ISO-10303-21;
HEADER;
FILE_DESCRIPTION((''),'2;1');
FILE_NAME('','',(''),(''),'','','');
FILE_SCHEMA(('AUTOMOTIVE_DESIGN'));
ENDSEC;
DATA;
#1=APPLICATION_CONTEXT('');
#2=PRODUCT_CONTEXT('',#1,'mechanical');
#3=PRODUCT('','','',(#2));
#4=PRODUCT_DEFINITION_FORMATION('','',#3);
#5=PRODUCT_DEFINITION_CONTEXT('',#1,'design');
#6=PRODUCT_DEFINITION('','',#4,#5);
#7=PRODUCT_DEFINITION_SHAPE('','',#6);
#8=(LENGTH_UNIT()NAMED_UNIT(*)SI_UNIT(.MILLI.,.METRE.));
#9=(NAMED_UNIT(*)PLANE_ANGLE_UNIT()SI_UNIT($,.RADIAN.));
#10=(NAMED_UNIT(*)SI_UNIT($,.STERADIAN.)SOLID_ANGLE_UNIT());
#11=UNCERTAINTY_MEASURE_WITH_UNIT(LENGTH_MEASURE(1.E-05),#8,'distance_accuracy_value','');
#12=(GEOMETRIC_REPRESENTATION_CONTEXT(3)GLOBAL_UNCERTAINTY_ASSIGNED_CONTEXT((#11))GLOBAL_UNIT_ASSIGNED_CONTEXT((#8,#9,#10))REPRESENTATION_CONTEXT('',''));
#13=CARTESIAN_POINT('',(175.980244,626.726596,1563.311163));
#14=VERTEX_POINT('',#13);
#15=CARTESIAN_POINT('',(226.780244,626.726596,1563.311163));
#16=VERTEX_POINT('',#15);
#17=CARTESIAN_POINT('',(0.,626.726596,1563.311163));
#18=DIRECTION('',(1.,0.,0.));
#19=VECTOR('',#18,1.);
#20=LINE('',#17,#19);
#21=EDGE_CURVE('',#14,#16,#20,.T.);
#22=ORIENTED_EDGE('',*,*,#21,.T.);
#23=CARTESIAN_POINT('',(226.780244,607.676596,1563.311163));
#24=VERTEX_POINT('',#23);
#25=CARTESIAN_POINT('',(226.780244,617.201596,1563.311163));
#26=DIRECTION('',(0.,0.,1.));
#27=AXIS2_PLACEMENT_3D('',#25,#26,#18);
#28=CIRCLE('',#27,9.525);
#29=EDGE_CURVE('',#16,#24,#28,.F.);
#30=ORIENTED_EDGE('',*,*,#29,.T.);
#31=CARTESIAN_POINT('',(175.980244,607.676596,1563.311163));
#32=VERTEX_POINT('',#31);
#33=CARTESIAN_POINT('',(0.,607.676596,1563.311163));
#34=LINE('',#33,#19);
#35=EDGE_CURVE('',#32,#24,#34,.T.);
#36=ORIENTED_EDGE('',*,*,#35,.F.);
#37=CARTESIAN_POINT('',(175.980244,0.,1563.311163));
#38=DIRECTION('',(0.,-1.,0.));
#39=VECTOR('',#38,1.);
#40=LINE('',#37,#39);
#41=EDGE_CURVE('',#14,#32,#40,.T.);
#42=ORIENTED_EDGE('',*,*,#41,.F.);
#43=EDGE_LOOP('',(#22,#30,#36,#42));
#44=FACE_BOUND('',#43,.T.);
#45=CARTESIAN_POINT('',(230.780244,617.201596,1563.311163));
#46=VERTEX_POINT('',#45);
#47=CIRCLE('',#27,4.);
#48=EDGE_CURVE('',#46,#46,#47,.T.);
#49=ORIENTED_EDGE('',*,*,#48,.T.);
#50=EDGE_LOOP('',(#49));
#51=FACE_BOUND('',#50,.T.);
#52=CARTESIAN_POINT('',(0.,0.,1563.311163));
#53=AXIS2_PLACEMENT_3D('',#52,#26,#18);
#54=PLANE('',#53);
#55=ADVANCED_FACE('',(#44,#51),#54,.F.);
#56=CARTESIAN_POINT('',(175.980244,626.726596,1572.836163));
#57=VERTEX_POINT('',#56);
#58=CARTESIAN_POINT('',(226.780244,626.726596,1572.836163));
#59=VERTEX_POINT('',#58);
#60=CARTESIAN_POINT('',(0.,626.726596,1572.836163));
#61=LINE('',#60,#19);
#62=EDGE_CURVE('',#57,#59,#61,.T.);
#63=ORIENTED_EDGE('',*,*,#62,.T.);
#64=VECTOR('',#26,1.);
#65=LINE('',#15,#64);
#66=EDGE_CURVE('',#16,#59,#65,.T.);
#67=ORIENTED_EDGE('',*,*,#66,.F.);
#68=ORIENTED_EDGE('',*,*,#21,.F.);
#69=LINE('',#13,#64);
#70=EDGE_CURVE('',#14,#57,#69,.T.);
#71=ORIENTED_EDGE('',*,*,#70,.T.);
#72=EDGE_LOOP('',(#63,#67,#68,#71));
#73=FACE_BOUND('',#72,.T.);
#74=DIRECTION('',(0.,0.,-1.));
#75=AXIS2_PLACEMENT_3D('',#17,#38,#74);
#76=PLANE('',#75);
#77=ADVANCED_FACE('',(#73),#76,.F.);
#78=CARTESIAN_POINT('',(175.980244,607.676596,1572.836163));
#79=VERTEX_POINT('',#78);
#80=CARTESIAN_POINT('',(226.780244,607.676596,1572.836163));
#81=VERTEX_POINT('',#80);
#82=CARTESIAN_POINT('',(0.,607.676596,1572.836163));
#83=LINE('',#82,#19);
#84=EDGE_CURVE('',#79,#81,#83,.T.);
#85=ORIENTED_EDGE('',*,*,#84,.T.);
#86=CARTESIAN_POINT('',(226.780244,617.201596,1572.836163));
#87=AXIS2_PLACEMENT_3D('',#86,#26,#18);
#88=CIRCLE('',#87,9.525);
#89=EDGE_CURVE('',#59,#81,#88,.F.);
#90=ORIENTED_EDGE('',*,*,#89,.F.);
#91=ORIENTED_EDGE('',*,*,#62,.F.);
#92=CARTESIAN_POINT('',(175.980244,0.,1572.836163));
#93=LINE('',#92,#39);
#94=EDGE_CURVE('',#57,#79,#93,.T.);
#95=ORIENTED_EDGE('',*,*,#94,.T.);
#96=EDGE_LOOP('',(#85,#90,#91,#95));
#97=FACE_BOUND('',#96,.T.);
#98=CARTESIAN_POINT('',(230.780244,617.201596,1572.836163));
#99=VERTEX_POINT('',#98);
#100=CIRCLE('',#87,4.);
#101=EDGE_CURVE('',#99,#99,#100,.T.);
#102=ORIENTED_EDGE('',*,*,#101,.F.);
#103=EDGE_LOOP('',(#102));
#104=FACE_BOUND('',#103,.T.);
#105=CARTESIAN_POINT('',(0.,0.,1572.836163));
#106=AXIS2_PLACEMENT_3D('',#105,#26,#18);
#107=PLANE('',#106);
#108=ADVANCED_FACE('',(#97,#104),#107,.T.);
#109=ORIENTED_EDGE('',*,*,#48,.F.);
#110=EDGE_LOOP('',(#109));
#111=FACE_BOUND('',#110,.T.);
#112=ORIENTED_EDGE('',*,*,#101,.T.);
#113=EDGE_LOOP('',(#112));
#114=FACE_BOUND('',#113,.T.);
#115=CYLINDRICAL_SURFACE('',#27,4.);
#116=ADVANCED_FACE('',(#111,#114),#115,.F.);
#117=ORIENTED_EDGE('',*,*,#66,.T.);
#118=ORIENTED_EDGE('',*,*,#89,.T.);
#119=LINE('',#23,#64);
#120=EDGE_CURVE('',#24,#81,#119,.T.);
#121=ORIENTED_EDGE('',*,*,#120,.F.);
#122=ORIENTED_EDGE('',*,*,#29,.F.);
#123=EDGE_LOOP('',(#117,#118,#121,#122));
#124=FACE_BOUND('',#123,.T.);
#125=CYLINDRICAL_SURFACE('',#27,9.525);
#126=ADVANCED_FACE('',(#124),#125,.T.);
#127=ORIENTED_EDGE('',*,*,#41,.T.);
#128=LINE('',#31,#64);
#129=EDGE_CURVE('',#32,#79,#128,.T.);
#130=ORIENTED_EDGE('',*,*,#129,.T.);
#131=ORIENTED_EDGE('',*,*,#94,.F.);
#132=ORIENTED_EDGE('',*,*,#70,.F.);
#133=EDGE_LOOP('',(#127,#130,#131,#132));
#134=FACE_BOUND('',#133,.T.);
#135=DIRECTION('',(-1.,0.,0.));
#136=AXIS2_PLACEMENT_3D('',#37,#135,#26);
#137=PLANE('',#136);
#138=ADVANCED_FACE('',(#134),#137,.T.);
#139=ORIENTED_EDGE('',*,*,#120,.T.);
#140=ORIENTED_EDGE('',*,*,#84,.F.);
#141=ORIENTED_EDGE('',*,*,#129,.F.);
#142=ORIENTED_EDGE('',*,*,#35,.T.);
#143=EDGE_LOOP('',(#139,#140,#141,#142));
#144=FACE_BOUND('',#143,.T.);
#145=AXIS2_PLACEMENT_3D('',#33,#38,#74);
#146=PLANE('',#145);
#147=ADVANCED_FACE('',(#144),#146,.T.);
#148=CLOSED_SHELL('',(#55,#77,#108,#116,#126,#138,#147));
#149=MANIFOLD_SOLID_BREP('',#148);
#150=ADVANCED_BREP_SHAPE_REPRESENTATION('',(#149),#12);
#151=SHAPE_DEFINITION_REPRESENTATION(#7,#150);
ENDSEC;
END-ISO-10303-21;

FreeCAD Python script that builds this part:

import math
import FreeCAD as App
import Part
import Sketcher

V = App.Vector
Q = App.Units.Quantity

doc = App.newDocument("Part")
body = doc.addObject("PartDesign::Body", "Body")

# Sketch on XY plane
sketch1 = doc.addObject("Sketcher::SketchObject", "Sketch")
body.addObject(sketch1)
sketch1.AttachmentSupport = (doc.XY_Plane, [""])
sketch1.MapMode = "FlatFace"
sketch1.AttachmentOffset = App.Placement(V(0, 0, 1568.073663), App.Rotation())
sketch1.addGeometry([
    Part.LineSegment(V(176, 626.7, 0), V(176, 607.7, 0)),  # 0
    Part.LineSegment(V(176, 607.7, 0), V(226.8, 607.7, 0)),  # 1
    Part.ArcOfCircle(Part.Circle(V(226.8, 617.2, 0), V(0, 0, 1), 9.5), math.radians(-90), math.radians(90)),  # 2
    Part.LineSegment(V(226.8, 626.7, 0), V(176, 626.7, 0)),  # 3
    Part.Circle(V(226.8, 617.2, 0), V(0, 0, 1), 4),  # 4
], False)
sketch1.addConstraint([
    Sketcher.Constraint("Coincident", 0, 2, 1, 1),
    Sketcher.Constraint("Tangent", 1, 2, 2, 1),
    Sketcher.Constraint("Tangent", 2, 2, 3, 1),
    Sketcher.Constraint("Coincident", 3, 2, 0, 1),
    Sketcher.Constraint("Vertical", 0),
    Sketcher.Constraint("Horizontal", 1),
    Sketcher.Constraint("Horizontal", 3),
    Sketcher.Constraint("Coincident", 4, 3, 2, 3),
    Sketcher.Constraint("DistanceX", 1, 1, 1, 2, Q("2 in")),
    Sketcher.Constraint("Radius", 2, Q("0.375 in")),
    Sketcher.Constraint("Diameter", 4, 8.0),
    Sketcher.Constraint("DistanceX", -1, 1, 2, 3, 226.780244),
    Sketcher.Constraint("DistanceY", -1, 1, 2, 3, 617.201596),
])
pad1 = doc.addObject("PartDesign::Pad", "Pad")
body.addObject(pad1)
pad1.Profile = sketch1
pad1.Type = "TwoLengths"
pad1.Length = Q("0.1875 in")
pad1.Length2 = Q("0.1875 in")

doc.recompute()
